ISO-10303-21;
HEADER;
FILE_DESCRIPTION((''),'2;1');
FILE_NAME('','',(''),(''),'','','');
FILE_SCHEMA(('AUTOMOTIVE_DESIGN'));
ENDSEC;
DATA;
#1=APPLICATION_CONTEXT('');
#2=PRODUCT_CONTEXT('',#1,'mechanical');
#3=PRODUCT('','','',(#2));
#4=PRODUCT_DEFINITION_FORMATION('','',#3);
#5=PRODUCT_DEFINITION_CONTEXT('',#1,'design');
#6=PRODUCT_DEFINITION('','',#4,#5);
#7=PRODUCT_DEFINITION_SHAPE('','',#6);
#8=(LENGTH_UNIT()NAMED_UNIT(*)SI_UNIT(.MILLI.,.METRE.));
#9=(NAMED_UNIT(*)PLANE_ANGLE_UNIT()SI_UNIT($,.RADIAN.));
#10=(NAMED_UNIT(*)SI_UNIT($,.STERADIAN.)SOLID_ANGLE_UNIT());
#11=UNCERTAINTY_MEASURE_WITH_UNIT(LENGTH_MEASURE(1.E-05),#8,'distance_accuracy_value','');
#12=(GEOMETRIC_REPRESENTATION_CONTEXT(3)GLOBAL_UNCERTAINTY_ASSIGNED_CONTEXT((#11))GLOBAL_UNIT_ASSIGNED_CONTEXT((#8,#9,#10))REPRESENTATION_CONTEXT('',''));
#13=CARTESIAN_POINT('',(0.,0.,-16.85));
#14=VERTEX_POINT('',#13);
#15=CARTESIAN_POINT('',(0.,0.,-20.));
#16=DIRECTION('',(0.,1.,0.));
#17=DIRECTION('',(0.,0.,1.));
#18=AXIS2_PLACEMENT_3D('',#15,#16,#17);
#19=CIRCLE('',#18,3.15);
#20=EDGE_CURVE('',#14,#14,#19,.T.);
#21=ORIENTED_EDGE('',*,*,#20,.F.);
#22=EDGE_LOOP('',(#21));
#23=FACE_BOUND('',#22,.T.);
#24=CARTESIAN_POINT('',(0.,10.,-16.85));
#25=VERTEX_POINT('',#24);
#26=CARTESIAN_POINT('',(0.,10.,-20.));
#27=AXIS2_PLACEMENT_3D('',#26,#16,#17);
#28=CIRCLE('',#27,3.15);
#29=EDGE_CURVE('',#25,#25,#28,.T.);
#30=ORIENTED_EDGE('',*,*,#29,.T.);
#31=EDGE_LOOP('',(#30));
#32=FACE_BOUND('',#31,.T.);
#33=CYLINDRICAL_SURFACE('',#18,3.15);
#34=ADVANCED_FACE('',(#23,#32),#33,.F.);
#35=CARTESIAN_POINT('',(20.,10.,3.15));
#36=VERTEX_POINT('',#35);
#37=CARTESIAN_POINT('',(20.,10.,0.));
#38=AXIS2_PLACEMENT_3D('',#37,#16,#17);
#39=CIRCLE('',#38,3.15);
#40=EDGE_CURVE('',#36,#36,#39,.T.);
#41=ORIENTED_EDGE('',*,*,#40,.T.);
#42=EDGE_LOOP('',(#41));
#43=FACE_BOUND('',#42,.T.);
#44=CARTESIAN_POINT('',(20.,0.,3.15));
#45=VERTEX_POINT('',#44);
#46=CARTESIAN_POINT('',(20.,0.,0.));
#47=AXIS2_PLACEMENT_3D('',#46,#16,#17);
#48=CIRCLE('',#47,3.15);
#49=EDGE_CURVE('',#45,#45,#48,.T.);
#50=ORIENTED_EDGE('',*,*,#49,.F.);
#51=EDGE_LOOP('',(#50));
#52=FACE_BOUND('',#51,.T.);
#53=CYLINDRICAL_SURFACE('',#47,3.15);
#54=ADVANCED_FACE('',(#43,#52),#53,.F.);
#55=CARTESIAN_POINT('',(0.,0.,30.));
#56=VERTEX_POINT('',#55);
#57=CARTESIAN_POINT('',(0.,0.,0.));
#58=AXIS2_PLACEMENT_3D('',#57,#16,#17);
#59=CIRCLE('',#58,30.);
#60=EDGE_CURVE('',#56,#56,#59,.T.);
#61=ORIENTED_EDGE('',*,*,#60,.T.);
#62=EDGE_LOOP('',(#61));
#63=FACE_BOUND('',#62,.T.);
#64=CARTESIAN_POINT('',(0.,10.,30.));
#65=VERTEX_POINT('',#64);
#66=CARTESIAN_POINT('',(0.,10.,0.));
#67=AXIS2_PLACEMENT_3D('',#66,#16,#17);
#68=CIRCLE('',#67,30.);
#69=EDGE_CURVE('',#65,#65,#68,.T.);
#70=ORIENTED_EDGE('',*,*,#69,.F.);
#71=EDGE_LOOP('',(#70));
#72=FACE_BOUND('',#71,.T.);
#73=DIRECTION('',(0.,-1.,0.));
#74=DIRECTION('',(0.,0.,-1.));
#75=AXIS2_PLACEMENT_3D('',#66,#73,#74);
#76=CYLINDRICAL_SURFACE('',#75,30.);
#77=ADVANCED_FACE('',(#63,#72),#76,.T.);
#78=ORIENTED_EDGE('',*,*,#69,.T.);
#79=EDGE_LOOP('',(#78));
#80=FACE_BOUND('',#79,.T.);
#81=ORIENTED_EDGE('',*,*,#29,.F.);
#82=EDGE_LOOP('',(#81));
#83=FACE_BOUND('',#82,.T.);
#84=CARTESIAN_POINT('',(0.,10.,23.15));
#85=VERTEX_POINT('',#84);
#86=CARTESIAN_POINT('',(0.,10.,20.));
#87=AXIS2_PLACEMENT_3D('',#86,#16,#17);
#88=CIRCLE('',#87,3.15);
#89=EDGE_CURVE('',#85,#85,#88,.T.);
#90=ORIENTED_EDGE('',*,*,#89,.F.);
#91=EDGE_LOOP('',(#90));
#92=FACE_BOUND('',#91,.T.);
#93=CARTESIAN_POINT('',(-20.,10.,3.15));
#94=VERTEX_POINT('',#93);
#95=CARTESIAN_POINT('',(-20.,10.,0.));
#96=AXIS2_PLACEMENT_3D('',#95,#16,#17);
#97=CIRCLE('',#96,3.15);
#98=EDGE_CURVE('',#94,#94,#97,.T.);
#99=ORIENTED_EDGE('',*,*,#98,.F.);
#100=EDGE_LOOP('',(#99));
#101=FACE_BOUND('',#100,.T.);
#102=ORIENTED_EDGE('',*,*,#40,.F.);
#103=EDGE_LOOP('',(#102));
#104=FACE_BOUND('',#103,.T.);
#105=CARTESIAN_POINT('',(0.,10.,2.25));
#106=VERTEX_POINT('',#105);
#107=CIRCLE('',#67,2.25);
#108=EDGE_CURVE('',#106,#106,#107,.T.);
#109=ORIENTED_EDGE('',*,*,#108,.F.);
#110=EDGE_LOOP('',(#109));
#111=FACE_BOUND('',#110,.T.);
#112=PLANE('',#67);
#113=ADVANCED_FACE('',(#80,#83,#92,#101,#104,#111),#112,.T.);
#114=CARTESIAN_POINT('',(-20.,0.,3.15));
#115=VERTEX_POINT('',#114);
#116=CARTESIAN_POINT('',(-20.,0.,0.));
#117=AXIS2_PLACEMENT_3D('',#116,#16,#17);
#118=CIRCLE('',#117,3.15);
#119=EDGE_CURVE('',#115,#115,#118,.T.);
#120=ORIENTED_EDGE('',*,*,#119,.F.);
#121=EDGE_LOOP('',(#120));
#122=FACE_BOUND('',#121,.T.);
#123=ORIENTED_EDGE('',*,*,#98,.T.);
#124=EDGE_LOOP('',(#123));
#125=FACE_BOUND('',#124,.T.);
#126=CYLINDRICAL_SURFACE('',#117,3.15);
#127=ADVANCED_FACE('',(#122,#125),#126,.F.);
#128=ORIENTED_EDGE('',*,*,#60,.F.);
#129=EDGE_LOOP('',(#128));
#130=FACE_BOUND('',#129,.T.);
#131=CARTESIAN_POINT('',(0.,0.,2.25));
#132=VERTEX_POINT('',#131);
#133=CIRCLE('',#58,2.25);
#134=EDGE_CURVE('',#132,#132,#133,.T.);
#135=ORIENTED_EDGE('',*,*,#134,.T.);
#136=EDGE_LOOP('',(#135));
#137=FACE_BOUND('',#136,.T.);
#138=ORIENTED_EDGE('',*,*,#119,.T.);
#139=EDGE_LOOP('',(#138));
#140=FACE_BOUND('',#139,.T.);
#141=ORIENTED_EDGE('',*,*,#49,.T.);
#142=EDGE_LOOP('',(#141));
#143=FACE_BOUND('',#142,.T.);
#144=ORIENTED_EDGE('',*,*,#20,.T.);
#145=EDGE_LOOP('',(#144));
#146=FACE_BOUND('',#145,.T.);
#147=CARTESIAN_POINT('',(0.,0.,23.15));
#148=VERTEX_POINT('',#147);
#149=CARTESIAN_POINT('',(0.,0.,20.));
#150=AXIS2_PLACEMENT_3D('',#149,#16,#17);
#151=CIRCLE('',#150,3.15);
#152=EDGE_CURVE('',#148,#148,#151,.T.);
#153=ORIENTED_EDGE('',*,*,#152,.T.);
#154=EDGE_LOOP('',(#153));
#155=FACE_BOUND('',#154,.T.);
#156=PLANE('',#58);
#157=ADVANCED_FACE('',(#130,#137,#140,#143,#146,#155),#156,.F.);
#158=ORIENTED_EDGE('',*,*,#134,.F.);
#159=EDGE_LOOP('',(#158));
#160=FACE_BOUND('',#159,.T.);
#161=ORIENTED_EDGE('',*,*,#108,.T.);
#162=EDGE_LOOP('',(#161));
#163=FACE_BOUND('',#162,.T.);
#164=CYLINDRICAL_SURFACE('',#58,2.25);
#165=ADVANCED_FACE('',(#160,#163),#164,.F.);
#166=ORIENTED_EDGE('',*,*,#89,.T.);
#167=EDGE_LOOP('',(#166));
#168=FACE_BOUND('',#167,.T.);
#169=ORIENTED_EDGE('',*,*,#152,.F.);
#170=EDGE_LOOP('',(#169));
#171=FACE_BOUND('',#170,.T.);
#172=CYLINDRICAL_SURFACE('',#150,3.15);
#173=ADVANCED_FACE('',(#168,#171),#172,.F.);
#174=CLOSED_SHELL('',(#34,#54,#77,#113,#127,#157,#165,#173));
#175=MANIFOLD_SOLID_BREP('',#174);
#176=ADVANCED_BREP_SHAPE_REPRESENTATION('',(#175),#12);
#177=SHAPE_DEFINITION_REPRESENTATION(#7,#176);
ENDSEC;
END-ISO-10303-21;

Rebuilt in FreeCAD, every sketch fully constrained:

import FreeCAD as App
import Part
import Sketcher
from FreeCAD import Vector

doc = App.newDocument("Part")
body = doc.addObject("PartDesign::Body", "Body")

# Sketch on XZ plane
sketch1 = body.newObject("Sketcher::SketchObject", "Sketch")
sketch1.AttachmentSupport = (doc.getObject("XZ_Plane"), [""])
sketch1.MapMode = "FlatFace"
sketch1.addGeometry(Part.Circle(Vector(0, 0, 0), Vector(0, 0, 1), 30), False)
sketch1.addConstraint([
    Sketcher.Constraint("Coincident", 0, 3, -1, 1),
    Sketcher.Constraint("Diameter", 0, 60.0),
])
pad1 = body.newObject("PartDesign::Pad", "Pad")
pad1.Profile = sketch1
pad1.Length = 10
pad1.Reversed = True

# Sketch on XZ plane
sketch2 = body.newObject("Sketcher::SketchObject", "Sketch001")
sketch2.AttachmentSupport = (doc.getObject("XZ_Plane"), [""])
sketch2.MapMode = "FlatFace"
sketch2.AttachmentOffset = App.Placement(Vector(0, 0, -10), App.Rotation())
sketch2.addGeometry([
    Part.Circle(Vector(0, -20, 0), Vector(0, 0, 1), 3.15),
    Part.Circle(Vector(20, 0, 0), Vector(0, 0, 1), 3.15),
    Part.Circle(Vector(0, 20, 0), Vector(0, 0, 1), 3.15),
    Part.Circle(Vector(-20, 0, 0), Vector(0, 0, 1), 3.15),
], False)
sketch2.addConstraint([
    Sketcher.Constraint("Equal", 0, 1),
    Sketcher.Constraint("Equal", 1, 2),
    Sketcher.Constraint("Equal", 2, 3),
    Sketcher.Constraint("Symmetric", 0, 3, 2, 3, -1, 1),
    Sketcher.Constraint("Symmetric", 1, 3, 3, 3, -1, 1),
    Sketcher.Constraint("PointOnObject", 0, 3, -2),
    Sketcher.Constraint("PointOnObject", 1, 3, -1),
    Sketcher.Constraint("Diameter", 0, 6.3),
    Sketcher.Constraint("DistanceY", 0, 3, -1, 1, 20.0),
    Sketcher.Constraint("DistanceX", -1, 1, 1, 3, 20.0),
])
pocket1 = body.newObject("PartDesign::Pocket", "Pocket")
pocket1.Profile = sketch2
pocket1.Type = "ThroughAll"
pocket1.Reversed = True

# Sketch on XZ plane
sketch3 = body.newObject("Sketcher::SketchObject", "Sketch002")
sketch3.AttachmentSupport = (doc.getObject("XZ_Plane"), [""])
sketch3.MapMode = "FlatFace"
sketch3.AttachmentOffset = App.Placement(Vector(0, 0, -10), App.Rotation())
sketch3.addGeometry(Part.Circle(Vector(0, 0, 0), Vector(0, 0, 1), 2.25), False)
sketch3.addConstraint([
    Sketcher.Constraint("Coincident", 0, 3, -1, 1),
    Sketcher.Constraint("Diameter", 0, 4.5),
])
pocket2 = body.newObject("PartDesign::Pocket", "Pocket001")
pocket2.Profile = sketch3
pocket2.Length = 10
pocket2.Reversed = True

doc.recompute()
